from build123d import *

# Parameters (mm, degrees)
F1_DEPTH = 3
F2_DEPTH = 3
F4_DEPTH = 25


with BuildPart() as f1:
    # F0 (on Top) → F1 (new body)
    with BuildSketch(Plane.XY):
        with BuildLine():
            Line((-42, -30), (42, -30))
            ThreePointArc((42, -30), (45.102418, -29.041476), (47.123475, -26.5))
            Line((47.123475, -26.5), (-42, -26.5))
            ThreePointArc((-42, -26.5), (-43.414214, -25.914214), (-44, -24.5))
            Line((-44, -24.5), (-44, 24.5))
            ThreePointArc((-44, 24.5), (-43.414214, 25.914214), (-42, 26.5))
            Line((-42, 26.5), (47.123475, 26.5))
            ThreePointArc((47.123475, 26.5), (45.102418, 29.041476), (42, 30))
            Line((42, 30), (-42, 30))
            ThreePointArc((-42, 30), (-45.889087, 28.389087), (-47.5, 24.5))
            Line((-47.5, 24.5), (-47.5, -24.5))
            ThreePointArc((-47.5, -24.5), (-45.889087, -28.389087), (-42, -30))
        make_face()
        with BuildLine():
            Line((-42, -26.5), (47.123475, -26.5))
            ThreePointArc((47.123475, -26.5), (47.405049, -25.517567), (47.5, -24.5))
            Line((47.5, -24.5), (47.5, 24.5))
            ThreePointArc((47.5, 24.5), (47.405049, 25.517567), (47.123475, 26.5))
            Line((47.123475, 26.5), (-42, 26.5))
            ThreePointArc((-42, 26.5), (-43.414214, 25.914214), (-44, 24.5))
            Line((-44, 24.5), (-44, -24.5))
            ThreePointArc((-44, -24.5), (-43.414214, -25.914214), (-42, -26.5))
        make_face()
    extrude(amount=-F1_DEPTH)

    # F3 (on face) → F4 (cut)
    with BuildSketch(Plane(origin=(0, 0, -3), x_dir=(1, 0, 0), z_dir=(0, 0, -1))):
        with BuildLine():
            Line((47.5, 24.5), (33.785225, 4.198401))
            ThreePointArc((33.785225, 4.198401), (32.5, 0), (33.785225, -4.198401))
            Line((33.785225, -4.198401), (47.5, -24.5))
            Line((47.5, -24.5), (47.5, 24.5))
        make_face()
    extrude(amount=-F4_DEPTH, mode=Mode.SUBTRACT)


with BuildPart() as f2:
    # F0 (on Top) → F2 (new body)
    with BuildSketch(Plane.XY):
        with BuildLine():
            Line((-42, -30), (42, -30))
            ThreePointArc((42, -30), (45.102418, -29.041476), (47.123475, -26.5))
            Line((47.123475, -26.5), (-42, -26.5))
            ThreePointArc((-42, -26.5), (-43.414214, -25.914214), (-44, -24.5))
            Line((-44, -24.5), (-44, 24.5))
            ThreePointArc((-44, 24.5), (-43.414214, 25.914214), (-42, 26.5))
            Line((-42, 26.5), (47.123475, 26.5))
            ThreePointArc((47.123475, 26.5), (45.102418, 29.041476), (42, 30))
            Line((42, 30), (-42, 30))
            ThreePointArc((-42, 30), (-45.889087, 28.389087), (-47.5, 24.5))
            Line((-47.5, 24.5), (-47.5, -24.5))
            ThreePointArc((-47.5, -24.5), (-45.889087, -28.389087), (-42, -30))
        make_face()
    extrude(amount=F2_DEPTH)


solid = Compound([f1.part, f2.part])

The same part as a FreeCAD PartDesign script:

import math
import FreeCAD as App
import Part
import Sketcher

V = App.Vector
Q = App.Units.Quantity

doc = App.newDocument("Part")
body = doc.addObject("PartDesign::Body", "Body")

# Sketch on XY plane
sketch1 = body.newObject("Sketcher::SketchObject", "Sketch")
sketch1.AttachmentSupport = (doc.getObject("XY_Plane"), [""])
sketch1.MapMode = "FlatFace"
sketch1.addGeometry([
    Part.LineSegment(V(-42, -30, 0), V(42, -30, 0)),  # 0
    Part.ArcOfCircle(Part.Circle(V(42, -24.5, 0), V(0, 0, 1), 5.5), math.radians(-90), math.radians(-21)),  # 1
    Part.ArcOfCircle(Part.Circle(V(42, -24.5, 0), V(0, 0, 1), 5.5), math.radians(-21), math.radians(0)),  # 2
    Part.LineSegment(V(47.5, -24.5, 0), V(47.5, 24.5, 0)),  # 3
    Part.ArcOfCircle(Part.Circle(V(42, 24.5, 0), V(0, 0, 1), 5.5), math.radians(0), math.radians(21)),  # 4
    Part.ArcOfCircle(Part.Circle(V(42, 24.5, 0), V(0, 0, 1), 5.5), math.radians(21), math.radians(90)),  # 5
    Part.LineSegment(V(42, 30, 0), V(-42, 30, 0)),  # 6
    Part.ArcOfCircle(Part.Circle(V(-42, 24.5, 0), V(0, 0, 1), 5.5), math.radians(90), math.radians(180)),  # 7
    Part.LineSegment(V(-47.5, 24.5, 0), V(-47.5, -24.5, 0)),  # 8
    Part.ArcOfCircle(Part.Circle(V(-42, -24.5, 0), V(0, 0, 1), 5.5), math.radians(-180), math.radians(-90)),  # 9
], False)
sketch1.addConstraint([
    Sketcher.Constraint("Tangent", 0, 2, 1, 1),
    Sketcher.Constraint("Tangent", 1, 2, 2, 1),
    Sketcher.Constraint("Tangent", 2, 2, 3, 1),
    Sketcher.Constraint("Tangent", 3, 2, 4, 1),
    Sketcher.Constraint("Tangent", 4, 2, 5, 1),
    Sketcher.Constraint("Tangent", 5, 2, 6, 1),
    Sketcher.Constraint("Tangent", 6, 2, 7, 1),
    Sketcher.Constraint("Tangent", 7, 2, 8, 1),
    Sketcher.Constraint("Tangent", 8, 2, 9, 1),
    Sketcher.Constraint("Tangent", 9, 2, 0, 1),
    Sketcher.Constraint("Horizontal", 0),
    Sketcher.Constraint("Vertical", 3),
    Sketcher.Constraint("Horizontal", 6),
    Sketcher.Constraint("Vertical", 8),
    Sketcher.Constraint("Equal", 2, 4),
    Sketcher.Constraint("Equal", 1, 5),
    Sketcher.Constraint("Equal", 7, 9),
    Sketcher.Constraint("Symmetric", 1, 3, 7, 3, -1, 1),
    Sketcher.Constraint("Symmetric", 4, 3, 9, 3, -1, 1),
    Sketcher.Constraint("Vertical", 1, 2, 4, 2),
    Sketcher.Constraint("Radius", 1, Q("5.499998 mm")),
    Sketcher.Constraint("DistanceX", 0, 1, 0, 2, Q("84 mm")),
    Sketcher.Constraint("DistanceY", 3, 1, 3, 2, Q("49 mm")),
    Sketcher.Constraint("DistanceY", 1, 2, 1, 3, Q("1.999998 mm")),
])
pad1 = body.newObject("PartDesign::Pad", "Pad")
pad1.Profile = sketch1
pad1.Length = 3
pad1.Reversed = True

# Sketch on XY plane
sketch2 = body.newObject("Sketcher::SketchObject", "Sketch001")
sketch2.AttachmentSupport = (doc.getObject("XY_Plane"), [""])
sketch2.MapMode = "FlatFace"
sketch2.AttachmentOffset = App.Placement(V(0, 0, -3), App.Rotation())
sketch2.addGeometry([
    Part.LineSegment(V(48, -24, 0), V(34, -4, 0)),
    Part.ArcOfCircle(Part.Circle(V(40, 0, 0), V(0, 0, 1), 7), math.radians(146), math.radians(214)),
    Part.LineSegment(V(34, 4, 0), V(48, 24, 0)),
    Part.LineSegment(V(48, 24, 0), V(48, -24, 0)),
], False)
sketch2.addConstraint([
    Sketcher.Constraint("Tangent", 0, 2, 1, 2),
    Sketcher.Constraint("Tangent", 1, 1, 2, 1),
    Sketcher.Constraint("Coincident", 2, 2, 3, 1),
    Sketcher.Constraint("Coincident", 3, 2, 0, 1),
    Sketcher.Constraint("Vertical", 3),
    Sketcher.Constraint("Symmetric", 0, 2, 1, 1, -1),
    Sketcher.Constraint("Radius", 1, Q("7.5 mm")),
    Sketcher.Constraint("DistanceY", 3, 2, 3, 1, Q("49 mm")),
    Sketcher.Constraint("DistanceX", -1, 1, 1, 3, Q("40 mm")),
    Sketcher.Constraint("Distance", 0, Q("24.499999 mm")),
])
pocket1 = body.newObject("PartDesign::Pocket", "Pocket")
pocket1.Profile = sketch2
pocket1.Length = 25
pocket1.Reversed = True
body2 = doc.addObject("PartDesign::Body", "Body001")

# Sketch on XY plane
sketch3 = body2.newObject("Sketcher::SketchObject", "Sketch002")
sketch3.AttachmentSupport = (doc.getObject("XY_Plane001"), [""])
sketch3.MapMode = "FlatFace"
sketch3.addGeometry([
    Part.LineSegment(V(-42, -30, 0), V(42, -30, 0)),  # 0
    Part.ArcOfCircle(Part.Circle(V(42, -24.5, 0), V(0, 0, 1), 5.5), math.radians(-90), math.radians(-21)),  # 1
    Part.LineSegment(V(47.1, -26.5, 0), V(-42, -26.5, 0)),  # 2
    Part.ArcOfCircle(Part.Circle(V(-42, -24.5, 0), V(0, 0, 1), 2), math.radians(180), math.radians(270)),  # 3
    Part.LineSegment(V(-44, -24.5, 0), V(-44, 24.5, 0)),  # 4
    Part.ArcOfCircle(Part.Circle(V(-42, 24.5, 0), V(0, 0, 1), 2), math.radians(90), math.radians(180)),  # 5
    Part.LineSegment(V(-42, 26.5, 0), V(47.1, 26.5, 0)),  # 6
    Part.ArcOfCircle(Part.Circle(V(42, 24.5, 0), V(0, 0, 1), 5.5), math.radians(21), math.radians(90)),  # 7
    Part.LineSegment(V(42, 30, 0), V(-42, 30, 0)),  # 8
    Part.ArcOfCircle(Part.Circle(V(-42, 24.5, 0), V(0, 0, 1), 5.5), math.radians(90), math.radians(180)),  # 9
    Part.LineSegment(V(-47.5, 24.5, 0), V(-47.5, -24.5, 0)),  # 10
    Part.ArcOfCircle(Part.Circle(V(-42, -24.5, 0), V(0, 0, 1), 5.5), math.radians(-180), math.radians(-90)),  # 11
], False)
sketch3.addConstraint([
    Sketcher.Constraint("Tangent", 0, 2, 1, 1),
    Sketcher.Constraint("Coincident", 1, 2, 2, 1),
    Sketcher.Constraint("Tangent", 2, 2, 3, 2),
    Sketcher.Constraint("Tangent", 3, 1, 4, 1),
    Sketcher.Constraint("Tangent", 4, 2, 5, 2),
    Sketcher.Constraint("Tangent", 5, 1, 6, 1),
    Sketcher.Constraint("Coincident", 6, 2, 7, 1),
    Sketcher.Constraint("Tangent", 7, 2, 8, 1),
    Sketcher.Constraint("Tangent", 8, 2, 9, 1),
    Sketcher.Constraint("Tangent", 9, 2, 10, 1),
    Sketcher.Constraint("Tangent", 10, 2, 11, 1),
    Sketcher.Constraint("Tangent", 11, 2, 0, 1),
    Sketcher.Constraint("Horizontal", 0),
    Sketcher.Constraint("Horizontal", 2),
    Sketcher.Constraint("Vertical", 4),
    Sketcher.Constraint("Horizontal", 6),
    Sketcher.Constraint("Horizontal", 8),
    Sketcher.Constraint("Vertical", 10),
    Sketcher.Constraint("Coincident", 9, 3, 5, 3),
    Sketcher.Constraint("Coincident", 11, 3, 3, 3),
    Sketcher.Constraint("Equal", 3, 5),
    Sketcher.Constraint("Equal", 1, 7),
    Sketcher.Constraint("Symmetric", 1, 3, 5, 3, -1, 1),
    Sketcher.Constraint("Symmetric", 3, 3, 7, 3, -1, 1),
    Sketcher.Constraint("Radius", 3, Q("1.999999 mm")),
    Sketcher.Constraint("Radius", 1, Q("5.499998 mm")),
    Sketcher.Constraint("DistanceX", 0, 1, 0, 2, Q("84 mm")),
    Sketcher.Constraint("DistanceY", 4, 1, 4, 2, Q("49 mm")),
])
pad2 = body2.newObject("PartDesign::Pad", "Pad001")
pad2.Profile = sketch3
pad2.Length = 3

doc.recompute()
